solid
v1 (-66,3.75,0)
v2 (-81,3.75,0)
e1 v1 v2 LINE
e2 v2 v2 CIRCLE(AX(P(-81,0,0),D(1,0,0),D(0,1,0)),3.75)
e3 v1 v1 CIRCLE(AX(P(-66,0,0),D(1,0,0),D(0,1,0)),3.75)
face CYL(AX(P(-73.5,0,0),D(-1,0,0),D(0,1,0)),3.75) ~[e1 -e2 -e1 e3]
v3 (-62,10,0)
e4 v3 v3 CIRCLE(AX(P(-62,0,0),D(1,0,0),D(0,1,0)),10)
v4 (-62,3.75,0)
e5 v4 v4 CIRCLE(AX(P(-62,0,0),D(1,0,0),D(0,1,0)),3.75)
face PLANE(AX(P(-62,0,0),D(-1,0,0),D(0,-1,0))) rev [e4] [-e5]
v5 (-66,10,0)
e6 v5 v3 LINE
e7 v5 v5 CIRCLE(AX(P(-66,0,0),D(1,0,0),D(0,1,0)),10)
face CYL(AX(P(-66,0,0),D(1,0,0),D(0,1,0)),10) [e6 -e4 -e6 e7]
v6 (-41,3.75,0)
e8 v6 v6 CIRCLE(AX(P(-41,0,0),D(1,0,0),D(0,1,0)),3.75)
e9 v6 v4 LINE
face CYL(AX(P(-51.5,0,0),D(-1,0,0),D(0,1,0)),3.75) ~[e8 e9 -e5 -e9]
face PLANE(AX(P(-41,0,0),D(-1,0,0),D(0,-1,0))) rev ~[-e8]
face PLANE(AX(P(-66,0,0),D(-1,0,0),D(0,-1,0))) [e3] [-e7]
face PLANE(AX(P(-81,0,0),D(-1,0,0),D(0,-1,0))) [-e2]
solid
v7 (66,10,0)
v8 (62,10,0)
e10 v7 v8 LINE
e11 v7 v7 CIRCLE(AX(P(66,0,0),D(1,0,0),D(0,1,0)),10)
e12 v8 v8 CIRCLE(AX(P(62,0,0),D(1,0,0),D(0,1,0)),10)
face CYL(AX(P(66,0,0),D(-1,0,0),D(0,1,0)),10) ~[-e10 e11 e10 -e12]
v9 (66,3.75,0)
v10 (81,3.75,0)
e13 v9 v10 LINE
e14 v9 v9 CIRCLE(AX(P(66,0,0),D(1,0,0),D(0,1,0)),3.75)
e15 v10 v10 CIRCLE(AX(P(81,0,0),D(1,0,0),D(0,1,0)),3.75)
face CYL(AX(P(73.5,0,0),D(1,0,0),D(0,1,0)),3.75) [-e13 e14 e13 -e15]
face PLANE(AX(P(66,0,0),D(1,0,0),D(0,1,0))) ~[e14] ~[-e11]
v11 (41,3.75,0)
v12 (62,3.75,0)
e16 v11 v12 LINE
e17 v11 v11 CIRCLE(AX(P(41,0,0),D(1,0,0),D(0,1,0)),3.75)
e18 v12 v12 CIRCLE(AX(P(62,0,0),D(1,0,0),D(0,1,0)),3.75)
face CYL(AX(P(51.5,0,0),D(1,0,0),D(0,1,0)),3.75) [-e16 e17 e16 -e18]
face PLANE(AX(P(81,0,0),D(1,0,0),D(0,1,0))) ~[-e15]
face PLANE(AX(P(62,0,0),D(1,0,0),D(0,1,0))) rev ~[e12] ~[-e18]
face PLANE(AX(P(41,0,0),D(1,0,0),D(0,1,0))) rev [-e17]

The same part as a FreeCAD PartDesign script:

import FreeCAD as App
import Part
import Sketcher
Q = App.Units.Quantity

doc = App.newDocument("Part")
body = doc.addObject("PartDesign::Body", "Body")

# Sketch on XY plane
sketch1 = body.newObject("Sketcher::SketchObject", "Sketch")
sketch1.AttachmentSupport = (doc.getObject("XY_Plane"), [""])
sketch1.MapMode = "FlatFace"
sketch1.addGeometry(Part.LineSegment(App.Vector(41, 3.8, 0), App.Vector(41, 0, 0)), False)
sketch1.addGeometry(Part.LineSegment(App.Vector(41, 0, 0), App.Vector(81, 0, 0)), False)
sketch1.addGeometry(Part.LineSegment(App.Vector(81, 0, 0), App.Vector(81, 3.8, 0)), False)
sketch1.addGeometry(Part.LineSegment(App.Vector(81, 3.8, 0), App.Vector(66, 3.8, 0)), False)
sketch1.addGeometry(Part.LineSegment(App.Vector(66, 3.8, 0), App.Vector(66, 10, 0)), False)
sketch1.addGeometry(Part.LineSegment(App.Vector(66, 10, 0), App.Vector(62, 10, 0)), False)
sketch1.addGeometry(Part.LineSegment(App.Vector(62, 10, 0), App.Vector(62, 3.8, 0)), False)
sketch1.addGeometry(Part.LineSegment(App.Vector(62, 3.8, 0), App.Vector(41, 3.8, 0)), False)
sketch1.addConstraint(Sketcher.Constraint("Coincident", 0, 2, 1, 1))
sketch1.addConstraint(Sketcher.Constraint("Coincident", 1, 2, 2, 1))
sketch1.addConstraint(Sketcher.Constraint("Coincident", 2, 2, 3, 1))
sketch1.addConstraint(Sketcher.Constraint("Coincident", 3, 2, 4, 1))
sketch1.addConstraint(Sketcher.Constraint("Coincident", 4, 2, 5, 1))
sketch1.addConstraint(Sketcher.Constraint("Coincident", 5, 2, 6, 1))
sketch1.addConstraint(Sketcher.Constraint("Coincident", 6, 2, 7, 1))
sketch1.addConstraint(Sketcher.Constraint("Coincident", 7, 2, 0, 1))
sketch1.addConstraint(Sketcher.Constraint("Vertical", 0))
sketch1.addConstraint(Sketcher.Constraint("Horizontal", 1))
sketch1.addConstraint(Sketcher.Constraint("Vertical", 2))
sketch1.addConstraint(Sketcher.Constraint("Horizontal", 3))
sketch1.addConstraint(Sketcher.Constraint("Vertical", 4))
sketch1.addConstraint(Sketcher.Constraint("Horizontal", 5))
sketch1.addConstraint(Sketcher.Constraint("Vertical", 6))
sketch1.addConstraint(Sketcher.Constraint("Horizontal", 7))
sketch1.addConstraint(Sketcher.Constraint("PointOnObject", 0, 2, -1))
sketch1.addConstraint(Sketcher.Constraint("Horizontal", 3, 2, 6, 2))
sketch1.addConstraint(Sketcher.Constraint("DistanceX", 1, 1, 1, 2, Q("40 mm")))
sketch1.addConstraint(Sketcher.Constraint("DistanceX", 3, 2, 3, 1, Q("15 mm")))
sketch1.addConstraint(Sketcher.Constraint("DistanceX", 5, 2, 5, 1, Q("4 mm")))
sketch1.addConstraint(Sketcher.Constraint("DistanceX", -1, 1, 0, 2, Q("41 mm")))
sketch1.addConstraint(Sketcher.Constraint("DistanceY", -1, 1, 4, 2, Q("10 mm")))
sketch1.addConstraint(Sketcher.Constraint("DistanceY", 0, 2, 0, 1, Q("3.75 mm")))
revolution = body.newObject("PartDesign::Revolution", "Revolution")
revolution.Profile = sketch1
revolution.ReferenceAxis = (sketch1, ["H_Axis"])
revolution.Angle = 360
body2 = doc.addObject("PartDesign::Body", "Body001")
doc.recompute()

mirroring = doc.addObject("Part::Mirroring", "Mirroring")
mirroring.Source = body
mirroring.Base = App.Vector(0, 0, 0)
mirroring.Normal = App.Vector(1, 0, 0)
body2.BaseFeature = mirroring
doc.recompute()
mirroring.Visibility = False

doc.recompute()
